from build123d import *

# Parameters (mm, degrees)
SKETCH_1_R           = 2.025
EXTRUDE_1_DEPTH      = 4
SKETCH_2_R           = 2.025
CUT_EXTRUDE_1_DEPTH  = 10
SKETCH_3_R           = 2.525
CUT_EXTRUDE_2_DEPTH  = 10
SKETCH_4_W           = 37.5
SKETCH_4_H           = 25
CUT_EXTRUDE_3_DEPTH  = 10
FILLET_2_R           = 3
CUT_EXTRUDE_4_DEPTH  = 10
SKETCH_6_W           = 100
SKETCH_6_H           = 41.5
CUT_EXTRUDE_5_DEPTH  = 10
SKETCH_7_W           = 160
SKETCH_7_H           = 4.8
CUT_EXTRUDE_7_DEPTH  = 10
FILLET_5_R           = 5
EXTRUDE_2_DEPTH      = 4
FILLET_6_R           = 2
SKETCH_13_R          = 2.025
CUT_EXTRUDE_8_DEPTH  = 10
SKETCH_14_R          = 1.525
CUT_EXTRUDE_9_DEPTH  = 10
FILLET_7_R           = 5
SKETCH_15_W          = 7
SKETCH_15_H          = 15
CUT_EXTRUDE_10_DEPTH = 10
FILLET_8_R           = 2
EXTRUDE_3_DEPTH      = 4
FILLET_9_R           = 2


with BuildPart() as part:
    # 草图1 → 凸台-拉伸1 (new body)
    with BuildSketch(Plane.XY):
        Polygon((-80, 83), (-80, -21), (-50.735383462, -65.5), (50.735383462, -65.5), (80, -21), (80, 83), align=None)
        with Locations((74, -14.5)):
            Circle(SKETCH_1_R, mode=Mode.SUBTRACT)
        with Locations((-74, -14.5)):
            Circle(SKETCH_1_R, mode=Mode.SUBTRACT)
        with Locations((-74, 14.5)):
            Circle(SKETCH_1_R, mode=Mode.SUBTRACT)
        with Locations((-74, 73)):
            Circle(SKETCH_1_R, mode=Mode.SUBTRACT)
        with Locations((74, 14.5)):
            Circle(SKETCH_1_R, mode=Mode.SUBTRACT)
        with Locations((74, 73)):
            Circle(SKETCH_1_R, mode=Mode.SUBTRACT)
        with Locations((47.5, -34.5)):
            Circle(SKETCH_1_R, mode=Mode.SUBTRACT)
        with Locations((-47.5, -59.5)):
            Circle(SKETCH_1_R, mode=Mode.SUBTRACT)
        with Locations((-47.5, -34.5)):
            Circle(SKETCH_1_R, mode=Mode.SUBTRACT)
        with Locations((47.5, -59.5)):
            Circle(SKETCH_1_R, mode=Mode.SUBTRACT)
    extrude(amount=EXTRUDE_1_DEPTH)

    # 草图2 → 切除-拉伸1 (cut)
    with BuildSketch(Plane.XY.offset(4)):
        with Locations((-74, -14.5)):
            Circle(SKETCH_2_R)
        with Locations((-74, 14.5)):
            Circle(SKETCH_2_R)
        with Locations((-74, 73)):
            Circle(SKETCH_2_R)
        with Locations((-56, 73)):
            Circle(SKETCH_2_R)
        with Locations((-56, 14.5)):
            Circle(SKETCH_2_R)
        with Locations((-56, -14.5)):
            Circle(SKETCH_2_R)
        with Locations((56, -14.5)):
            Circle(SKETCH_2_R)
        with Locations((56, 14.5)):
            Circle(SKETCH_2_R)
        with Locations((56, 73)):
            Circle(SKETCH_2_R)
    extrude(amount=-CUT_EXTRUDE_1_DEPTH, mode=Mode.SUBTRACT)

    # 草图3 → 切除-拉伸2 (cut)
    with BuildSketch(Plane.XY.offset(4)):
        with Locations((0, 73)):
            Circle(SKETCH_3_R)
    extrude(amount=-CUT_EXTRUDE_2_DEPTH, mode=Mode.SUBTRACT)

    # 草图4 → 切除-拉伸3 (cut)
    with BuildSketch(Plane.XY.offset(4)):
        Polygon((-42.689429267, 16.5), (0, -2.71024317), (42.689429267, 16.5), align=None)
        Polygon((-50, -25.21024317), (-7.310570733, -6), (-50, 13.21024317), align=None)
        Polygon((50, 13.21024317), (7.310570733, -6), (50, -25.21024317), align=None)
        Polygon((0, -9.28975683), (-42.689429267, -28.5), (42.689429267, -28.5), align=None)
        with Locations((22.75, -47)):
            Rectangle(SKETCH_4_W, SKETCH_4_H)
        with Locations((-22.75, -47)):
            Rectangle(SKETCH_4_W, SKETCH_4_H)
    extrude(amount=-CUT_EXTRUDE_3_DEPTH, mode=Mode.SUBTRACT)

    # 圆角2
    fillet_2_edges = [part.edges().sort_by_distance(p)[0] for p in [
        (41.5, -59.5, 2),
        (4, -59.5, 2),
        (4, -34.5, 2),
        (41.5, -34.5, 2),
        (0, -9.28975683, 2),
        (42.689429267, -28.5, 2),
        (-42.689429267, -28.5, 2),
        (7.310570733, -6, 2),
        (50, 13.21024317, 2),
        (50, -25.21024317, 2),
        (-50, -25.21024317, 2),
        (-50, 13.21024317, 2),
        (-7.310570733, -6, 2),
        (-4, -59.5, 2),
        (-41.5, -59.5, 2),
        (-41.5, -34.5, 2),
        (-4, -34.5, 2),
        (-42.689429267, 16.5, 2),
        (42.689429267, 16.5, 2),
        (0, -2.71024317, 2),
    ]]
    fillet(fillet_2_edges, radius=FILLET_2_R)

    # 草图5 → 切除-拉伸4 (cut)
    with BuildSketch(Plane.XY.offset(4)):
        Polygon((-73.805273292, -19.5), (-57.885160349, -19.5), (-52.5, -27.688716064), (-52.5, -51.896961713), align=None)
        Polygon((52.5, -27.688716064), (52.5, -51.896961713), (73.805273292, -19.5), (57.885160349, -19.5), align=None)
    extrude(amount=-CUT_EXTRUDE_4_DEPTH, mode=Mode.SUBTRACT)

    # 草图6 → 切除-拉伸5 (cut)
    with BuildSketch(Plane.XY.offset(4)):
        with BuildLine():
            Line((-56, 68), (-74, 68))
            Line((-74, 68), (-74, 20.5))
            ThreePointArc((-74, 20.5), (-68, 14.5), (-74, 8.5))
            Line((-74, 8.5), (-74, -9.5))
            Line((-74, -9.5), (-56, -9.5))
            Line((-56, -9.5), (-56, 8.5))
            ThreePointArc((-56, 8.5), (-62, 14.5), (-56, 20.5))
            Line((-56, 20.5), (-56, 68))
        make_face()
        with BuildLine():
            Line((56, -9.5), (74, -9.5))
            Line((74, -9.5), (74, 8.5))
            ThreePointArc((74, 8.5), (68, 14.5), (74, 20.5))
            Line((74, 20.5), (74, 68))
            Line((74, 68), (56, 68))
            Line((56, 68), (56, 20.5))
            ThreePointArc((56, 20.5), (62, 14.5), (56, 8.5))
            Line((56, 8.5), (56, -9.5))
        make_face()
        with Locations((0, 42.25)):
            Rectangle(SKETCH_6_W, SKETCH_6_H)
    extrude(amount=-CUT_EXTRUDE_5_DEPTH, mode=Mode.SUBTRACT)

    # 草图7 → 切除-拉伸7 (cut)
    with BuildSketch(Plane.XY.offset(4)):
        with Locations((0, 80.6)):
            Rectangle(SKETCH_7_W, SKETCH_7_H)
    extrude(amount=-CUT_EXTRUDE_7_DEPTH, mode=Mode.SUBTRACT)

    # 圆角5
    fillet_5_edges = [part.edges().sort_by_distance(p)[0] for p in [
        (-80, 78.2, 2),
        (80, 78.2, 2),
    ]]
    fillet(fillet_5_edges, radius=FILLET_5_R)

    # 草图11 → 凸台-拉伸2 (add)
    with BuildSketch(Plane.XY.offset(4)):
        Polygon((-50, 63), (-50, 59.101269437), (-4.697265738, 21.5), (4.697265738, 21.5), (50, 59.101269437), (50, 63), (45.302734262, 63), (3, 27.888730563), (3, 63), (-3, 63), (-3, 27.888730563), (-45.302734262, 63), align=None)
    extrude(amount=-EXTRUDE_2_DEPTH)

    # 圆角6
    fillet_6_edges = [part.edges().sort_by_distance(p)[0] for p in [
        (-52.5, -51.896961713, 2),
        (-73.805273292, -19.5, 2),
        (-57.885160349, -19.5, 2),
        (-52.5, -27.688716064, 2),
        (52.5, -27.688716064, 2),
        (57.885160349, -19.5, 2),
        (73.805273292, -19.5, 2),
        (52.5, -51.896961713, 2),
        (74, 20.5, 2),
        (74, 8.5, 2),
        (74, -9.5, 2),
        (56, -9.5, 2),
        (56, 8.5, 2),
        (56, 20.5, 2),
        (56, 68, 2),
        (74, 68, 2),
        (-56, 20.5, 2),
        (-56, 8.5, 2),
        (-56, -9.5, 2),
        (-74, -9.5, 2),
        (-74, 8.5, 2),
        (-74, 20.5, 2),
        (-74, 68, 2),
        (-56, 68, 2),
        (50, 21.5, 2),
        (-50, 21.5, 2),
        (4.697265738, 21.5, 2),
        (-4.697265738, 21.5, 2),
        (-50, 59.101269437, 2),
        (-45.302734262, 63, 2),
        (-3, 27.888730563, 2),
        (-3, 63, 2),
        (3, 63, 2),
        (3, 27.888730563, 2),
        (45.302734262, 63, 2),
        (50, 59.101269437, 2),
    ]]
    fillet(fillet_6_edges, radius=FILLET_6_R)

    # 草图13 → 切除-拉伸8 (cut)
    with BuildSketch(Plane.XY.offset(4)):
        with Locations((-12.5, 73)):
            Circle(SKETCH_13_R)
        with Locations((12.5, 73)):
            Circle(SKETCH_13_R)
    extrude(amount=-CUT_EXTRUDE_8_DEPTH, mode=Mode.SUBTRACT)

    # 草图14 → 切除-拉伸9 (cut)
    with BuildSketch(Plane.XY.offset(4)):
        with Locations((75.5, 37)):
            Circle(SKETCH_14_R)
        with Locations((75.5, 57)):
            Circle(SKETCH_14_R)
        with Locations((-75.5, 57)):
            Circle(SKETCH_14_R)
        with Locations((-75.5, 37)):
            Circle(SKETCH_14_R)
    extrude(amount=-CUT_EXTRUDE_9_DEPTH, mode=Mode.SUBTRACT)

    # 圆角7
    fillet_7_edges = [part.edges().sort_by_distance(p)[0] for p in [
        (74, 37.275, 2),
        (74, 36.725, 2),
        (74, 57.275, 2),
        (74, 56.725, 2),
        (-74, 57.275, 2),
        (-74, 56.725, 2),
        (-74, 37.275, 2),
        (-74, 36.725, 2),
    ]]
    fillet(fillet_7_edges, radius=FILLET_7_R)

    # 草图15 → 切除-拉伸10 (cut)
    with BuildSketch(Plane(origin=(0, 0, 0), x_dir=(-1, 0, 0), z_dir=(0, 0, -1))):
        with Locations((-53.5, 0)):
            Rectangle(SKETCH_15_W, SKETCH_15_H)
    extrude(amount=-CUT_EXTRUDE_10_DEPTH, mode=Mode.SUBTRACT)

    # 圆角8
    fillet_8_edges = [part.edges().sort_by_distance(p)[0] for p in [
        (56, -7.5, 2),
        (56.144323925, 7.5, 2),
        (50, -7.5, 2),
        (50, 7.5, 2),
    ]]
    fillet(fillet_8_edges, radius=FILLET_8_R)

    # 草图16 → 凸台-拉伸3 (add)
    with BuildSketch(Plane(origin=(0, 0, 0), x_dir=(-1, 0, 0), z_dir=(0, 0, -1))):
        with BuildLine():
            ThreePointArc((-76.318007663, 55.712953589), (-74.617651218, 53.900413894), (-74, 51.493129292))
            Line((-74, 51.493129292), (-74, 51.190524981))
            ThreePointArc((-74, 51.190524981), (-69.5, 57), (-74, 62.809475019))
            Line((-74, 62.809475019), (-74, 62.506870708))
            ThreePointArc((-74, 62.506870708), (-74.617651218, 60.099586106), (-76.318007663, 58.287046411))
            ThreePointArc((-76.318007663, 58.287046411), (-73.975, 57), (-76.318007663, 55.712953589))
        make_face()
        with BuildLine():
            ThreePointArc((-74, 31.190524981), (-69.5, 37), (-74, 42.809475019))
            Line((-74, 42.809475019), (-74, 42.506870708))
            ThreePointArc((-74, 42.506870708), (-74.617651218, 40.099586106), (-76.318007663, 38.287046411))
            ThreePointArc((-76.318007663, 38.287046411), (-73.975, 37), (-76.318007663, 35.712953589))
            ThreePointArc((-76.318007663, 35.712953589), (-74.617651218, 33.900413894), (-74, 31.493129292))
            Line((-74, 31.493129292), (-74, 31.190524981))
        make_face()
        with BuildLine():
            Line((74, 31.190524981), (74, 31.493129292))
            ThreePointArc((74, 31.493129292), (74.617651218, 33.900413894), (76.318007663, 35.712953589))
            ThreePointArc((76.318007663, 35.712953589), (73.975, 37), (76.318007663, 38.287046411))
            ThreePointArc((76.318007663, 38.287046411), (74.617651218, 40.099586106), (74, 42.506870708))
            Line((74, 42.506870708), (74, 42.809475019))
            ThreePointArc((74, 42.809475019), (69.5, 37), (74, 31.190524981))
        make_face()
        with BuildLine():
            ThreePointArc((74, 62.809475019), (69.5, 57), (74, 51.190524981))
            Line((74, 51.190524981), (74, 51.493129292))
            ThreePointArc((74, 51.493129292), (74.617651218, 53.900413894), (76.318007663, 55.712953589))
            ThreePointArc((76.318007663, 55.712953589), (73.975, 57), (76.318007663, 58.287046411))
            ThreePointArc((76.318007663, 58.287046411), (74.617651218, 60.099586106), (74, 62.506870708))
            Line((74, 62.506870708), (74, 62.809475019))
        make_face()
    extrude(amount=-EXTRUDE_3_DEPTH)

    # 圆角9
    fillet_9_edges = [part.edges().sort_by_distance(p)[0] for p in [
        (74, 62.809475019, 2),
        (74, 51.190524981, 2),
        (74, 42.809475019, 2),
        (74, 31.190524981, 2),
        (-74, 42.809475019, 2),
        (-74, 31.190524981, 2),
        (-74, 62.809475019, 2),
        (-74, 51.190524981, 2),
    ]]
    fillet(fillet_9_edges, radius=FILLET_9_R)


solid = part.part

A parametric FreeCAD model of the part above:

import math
import FreeCAD as App
import Part
import Sketcher
from FreeCAD import Vector


def edges_at(feature, points):
    """Names of the edges that pass closest to the given points."""
    edges = feature.Shape.Edges
    near = lambda p: min(range(len(edges)), key=lambda i: edges[i].distToShape(Part.Vertex(*p))[0])
    return sorted({f"Edge{near(p) + 1}" for p in points})

doc = App.newDocument("Part")
body = doc.addObject("PartDesign::Body", "Body")

# Sketch on XY plane
sketch1 = doc.addObject("Sketcher::SketchObject", "Sketch")
body.addObject(sketch1)
sketch1.AttachmentSupport = (doc.XY_Plane, [""])
sketch1.MapMode = "FlatFace"
sketch1.addGeometry([
    Part.LineSegment(Vector(-80, 83, 0), Vector(-80, -21, 0)),  # 0
    Part.LineSegment(Vector(-80, -21, 0), Vector(-50.7, -65.5, 0)),  # 1
    Part.LineSegment(Vector(-50.7, -65.5, 0), Vector(50.7, -65.5, 0)),  # 2
    Part.LineSegment(Vector(50.7, -65.5, 0), Vector(80, -21, 0)),  # 3
    Part.LineSegment(Vector(80, -21, 0), Vector(80, 83, 0)),  # 4
    Part.LineSegment(Vector(80, 83, 0), Vector(-80, 83, 0)),  # 5
    Part.Circle(Vector(-47.5, -59.5, 0), Vector(0, 0, 1), 2),  # 6
    Part.Circle(Vector(-47.5, -34.5, 0), Vector(0, 0, 1), 2),  # 7
    Part.Circle(Vector(-74, -14.5, 0), Vector(0, 0, 1), 2),  # 8
    Part.Circle(Vector(47.5, -59.5, 0), Vector(0, 0, 1), 2),  # 9
    Part.Circle(Vector(47.5, -34.5, 0), Vector(0, 0, 1), 2),  # 10
    Part.Circle(Vector(74, -14.5, 0), Vector(0, 0, 1), 2),  # 11
    Part.Circle(Vector(-74, 14.5, 0), Vector(0, 0, 1), 2),  # 12
    Part.Circle(Vector(-74, 73, 0), Vector(0, 0, 1), 2),  # 13
    Part.Circle(Vector(74, 14.5, 0), Vector(0, 0, 1), 2),  # 14
    Part.Circle(Vector(74, 73, 0), Vector(0, 0, 1), 2),  # 15
], False)
sketch1.addConstraint([
    Sketcher.Constraint("Coincident", 0, 2, 1, 1),
    Sketcher.Constraint("Coincident", 1, 2, 2, 1),
    Sketcher.Constraint("Coincident", 2, 2, 3, 1),
    Sketcher.Constraint("Coincident", 3, 2, 4, 1),
    Sketcher.Constraint("Coincident", 4, 2, 5, 1),
    Sketcher.Constraint("Coincident", 5, 2, 0, 1),
    Sketcher.Constraint("Vertical", 0),
    Sketcher.Constraint("Horizontal", 2),
    Sketcher.Constraint("Vertical", 4),
    Sketcher.Constraint("Horizontal", 5),
    Sketcher.Constraint("Equal", 6, 7),
    Sketcher.Constraint("Equal", 7, 8),
    Sketcher.Constraint("Equal", 8, 9),
    Sketcher.Constraint("Equal", 9, 10),
    Sketcher.Constraint("Equal", 10, 11),
    Sketcher.Constraint("Equal", 11, 12),
    Sketcher.Constraint("Equal", 12, 13),
    Sketcher.Constraint("Equal", 13, 14),
    Sketcher.Constraint("Equal", 14, 15),
    Sketcher.Constraint("Symmetric", 11, 3, 12, 3, -1, 1),
    Sketcher.Constraint("Symmetric", 8, 3, 14, 3, -1, 1),
    Sketcher.Constraint("Symmetric", 6, 3, 9, 3, -2),
    Sketcher.Constraint("Symmetric", 7, 3, 10, 3, -2),
    Sketcher.Constraint("Symmetric", 8, 3, 11, 3, -2),
    Sketcher.Constraint("Symmetric", 13, 3, 15, 3, -2),
    Sketcher.Constraint("Symmetric", 0, 2, 3, 2, -2),
    Sketcher.Constraint("Vertical", 6, 3, 7, 3),
    Sketcher.Constraint("Vertical", 12, 3, 13, 3),
    Sketcher.Constraint("Equal", 1, 3),
    Sketcher.Constraint("Diameter", 6, 4.05),
    Sketcher.Constraint("DistanceX", 5, 2, 5, 1, 160.0),
    Sketcher.Constraint("DistanceY", 0, 2, 0, 1, 104.0),
    Sketcher.Constraint("DistanceX", 8, 3, -1, 1, 74.0),
    Sketcher.Constraint("DistanceY", -1, 1, 13, 3, 73.0),
    Sketcher.Constraint("DistanceY", 0, 2, -1, 1, 21.0),
    Sketcher.Constraint("DistanceY", 6, 3, 7, 3, 25.0),
    Sketcher.Constraint("DistanceY", 7, 3, 8, 3, 20.0),
    Sketcher.Constraint("DistanceX", 6, 3, 9, 3, 95.0),
    Sketcher.Constraint("DistanceY", 8, 3, 12, 3, 29.0),
    Sketcher.Constraint("DistanceY", 1, 2, 6, 3, 6.0),
    Sketcher.Constraint("DistanceX", 2, 1, 2, 2, 101.470767),
])
pad1 = doc.addObject("PartDesign::Pad", "Pad")
body.addObject(pad1)
pad1.Profile = sketch1
pad1.Length = 4

# Sketch on XY plane
sketch2 = doc.addObject("Sketcher::SketchObject", "Sketch001")
body.addObject(sketch2)
sketch2.AttachmentSupport = (doc.XY_Plane, [""])
sketch2.MapMode = "FlatFace"
sketch2.AttachmentOffset = App.Placement(Vector(0, 0, 4), App.Rotation())
sketch2.addGeometry([
    Part.Circle(Vector(-74, -14.5, 0), Vector(0, 0, 1), 2),  # 0
    Part.Circle(Vector(-74, 14.5, 0), Vector(0, 0, 1), 2),  # 1
    Part.Circle(Vector(-74, 73, 0), Vector(0, 0, 1), 2),  # 2
    Part.Circle(Vector(-56, 73, 0), Vector(0, 0, 1), 2),  # 3
    Part.Circle(Vector(-56, 14.5, 0), Vector(0, 0, 1), 2),  # 4
    Part.Circle(Vector(-56, -14.5, 0), Vector(0, 0, 1), 2),  # 5
    Part.Circle(Vector(56, -14.5, 0), Vector(0, 0, 1), 2),  # 6
    Part.Circle(Vector(56, 14.5, 0), Vector(0, 0, 1), 2),  # 7
    Part.Circle(Vector(56, 73, 0), Vector(0, 0, 1), 2),  # 8
], False)
sketch2.addConstraint([
    Sketcher.Constraint("Equal", 0, 1),
    Sketcher.Constraint("Equal", 1, 2),
    Sketcher.Constraint("Equal", 2, 3),
    Sketcher.Constraint("Equal", 3, 4),
    Sketcher.Constraint("Equal", 4, 5),
    Sketcher.Constraint("Equal", 5, 6),
    Sketcher.Constraint("Equal", 6, 7),
    Sketcher.Constraint("Equal", 7, 8),
    Sketcher.Constraint("Symmetric", 4, 3, 6, 3, -1, 1),
    Sketcher.Constraint("Symmetric", 5, 3, 7, 3, -1, 1),
    Sketcher.Constraint("Symmetric", 5, 3, 6, 3, -2),
    Sketcher.Constraint("Symmetric", 3, 3, 8, 3, -2),
    Sketcher.Constraint("Symmetric", 0, 3, 1, 3, -1),
    Sketcher.Constraint("Horizontal", 2, 3, 3, 3),
    Sketcher.Constraint("Horizontal", 1, 3, 4, 3),
    Sketcher.Constraint("Vertical", 1, 3, 2, 3),
    Sketcher.Constraint("Vertical", 3, 3, 4, 3),
    Sketcher.Constraint("Diameter", 0, 4.05),
    Sketcher.Constraint("DistanceX", 0, 3, -1, 1, 74.0),
    Sketcher.Constraint("DistanceY", -1, 1, 2, 3, 73.0),
    Sketcher.Constraint("DistanceX", 3, 3, -1, 1, 56.0),
    Sketcher.Constraint("DistanceY", 0, 3, 1, 3, 29.0),
])
pocket1 = doc.addObject("PartDesign::Pocket", "Pocket")
body.addObject(pocket1)
pocket1.Profile = sketch2
pocket1.Length = 10

# Sketch on XY plane
sketch3 = doc.addObject("Sketcher::SketchObject", "Sketch002")
body.addObject(sketch3)
sketch3.AttachmentSupport = (doc.XY_Plane, [""])
sketch3.MapMode = "FlatFace"
sketch3.AttachmentOffset = App.Placement(Vector(0, 0, 4), App.Rotation())
sketch3.addGeometry(Part.Circle(Vector(0, 73, 0), Vector(0, 0, 1), 2.5), False)
sketch3.addConstraint([
    Sketcher.Constraint("PointOnObject", 0, 3, -2),
    Sketcher.Constraint("Diameter", 0, 5.05),
    Sketcher.Constraint("DistanceY", -1, 1, 0, 3, 73.0),
])
pocket2 = doc.addObject("PartDesign::Pocket", "Pocket001")
body.addObject(pocket2)
pocket2.Profile = sketch3
pocket2.Length = 10

# Sketch on XY plane
sketch4 = doc.addObject("Sketcher::SketchObject", "Sketch003")
body.addObject(sketch4)
sketch4.AttachmentSupport = (doc.XY_Plane, [""])
sketch4.MapMode = "FlatFace"
sketch4.AttachmentOffset = App.Placement(Vector(0, 0, 4), App.Rotation())
sketch4.addGeometry([
    Part.LineSegment(Vector(-43, 16, 0), Vector(0, -3, 0)),  # 0
    Part.LineSegment(Vector(0, -3, 0), Vector(43, 16, 0)),  # 1
    Part.LineSegment(Vector(43, 16, 0), Vector(-43, 16, 0)),  # 2
    Part.LineSegment(Vector(-50, -25, 0), Vector(-7, -6, 0)),  # 3
    Part.LineSegment(Vector(-7, -6, 0), Vector(-50, 13, 0)),  # 4
    Part.LineSegment(Vector(-50, 13, 0), Vector(-50, -25, 0)),  # 5
    Part.LineSegment(Vector(50, 13, 0), Vector(7, -6, 0)),  # 6
    Part.LineSegment(Vector(7, -6, 0), Vector(50, -25, 0)),  # 7
    Part.LineSegment(Vector(50, -25, 0), Vector(50, 13, 0)),  # 8
    Part.LineSegment(Vector(0, -9, 0), Vector(-43, -28, 0)),  # 9
    Part.LineSegment(Vector(-43, -28, 0), Vector(43, -28, 0)),  # 10
    Part.LineSegment(Vector(43, -28, 0), Vector(0, -9, 0)),  # 11
    Part.LineSegment(Vector(4, -34, 0), Vector(4, -60, 0)),  # 12
    Part.LineSegment(Vector(4, -60, 0), Vector(42, -60, 0)),  # 13
    Part.LineSegment(Vector(42, -60, 0), Vector(42, -34, 0)),  # 14
    Part.LineSegment(Vector(42, -34, 0), Vector(4, -34, 0)),  # 15
    Part.LineSegment(Vector(-42, -34, 0), Vector(-42, -60, 0)),  # 16
    Part.LineSegment(Vector(-42, -60, 0), Vector(-4, -60, 0)),  # 17
    Part.LineSegment(Vector(-4, -60, 0), Vector(-4, -34, 0)),  # 18
    Part.LineSegment(Vector(-4, -34, 0), Vector(-42, -34, 0)),  # 19
], False)
sketch4.addConstraint([
    Sketcher.Constraint("Coincident", 0, 2, 1, 1),
    Sketcher.Constraint("Coincident", 1, 2, 2, 1),
    Sketcher.Constraint("Coincident", 2, 2, 0, 1),
    Sketcher.Constraint("Coincident", 3, 2, 4, 1),
    Sketcher.Constraint("Coincident", 4, 2, 5, 1),
    Sketcher.Constraint("Coincident", 5, 2, 3, 1),
    Sketcher.Constraint("Coincident", 6, 2, 7, 1),
    Sketcher.Constraint("Coincident", 7, 2, 8, 1),
    Sketcher.Constraint("Coincident", 8, 2, 6, 1),
    Sketcher.Constraint("Coincident", 9, 2, 10, 1),
    Sketcher.Constraint("Coincident", 10, 2, 11, 1),
    Sketcher.Constraint("Coincident", 11, 2, 9, 1),
    Sketcher.Constraint("Coincident", 12, 2, 13, 1),
    Sketcher.Constraint("Coincident", 13, 2, 14, 1),
    Sketcher.Constraint("Coincident", 14, 2, 15, 1),
    Sketcher.Constraint("Coincident", 15, 2, 12, 1),
    Sketcher.Constraint("Coincident", 16, 2, 17, 1),
    Sketcher.Constraint("Coincident", 17, 2, 18, 1),
    Sketcher.Constraint("Coincident", 18, 2, 19, 1),
    Sketcher.Constraint("Coincident", 19, 2, 16, 1),
    Sketcher.Constraint("Horizontal", 2),
    Sketcher.Constraint("Vertical", 5),
    Sketcher.Constraint("Vertical", 8),
    Sketcher.Constraint("Horizontal", 10),
    Sketcher.Constraint("Vertical", 12),
    Sketcher.Constraint("Horizontal", 13),
    Sketcher.Constraint("Vertical", 14),
    Sketcher.Constraint("Horizontal", 15),
    Sketcher.Constraint("Vertical", 16),
    Sketcher.Constraint("Horizontal", 17),
    Sketcher.Constraint("Vertical", 18),
    Sketcher.Constraint("Horizontal", 19),
    Sketcher.Constraint("Symmetric", 3, 2, 6, 2, -2),
    Sketcher.Constraint("Symmetric", 5, 2, 7, 2, -2),
    Sketcher.Constraint("Symmetric", 13, 2, 16, 2, -2),
    Sketcher.Constraint("Symmetric", 15, 2, 18, 2, -2),
    Sketcher.Constraint("PointOnObject", 0, 2, -2),
    Sketcher.Constraint("PointOnObject", 11, 2, -2),
    Sketcher.Constraint("Parallel", 1, 3),
    Sketcher.Constraint("Parallel", 0, 4),
    Sketcher.Constraint("Parallel", 3, 6),
    Sketcher.Constraint("Parallel", 4, 7),
    Sketcher.Constraint("Parallel", 6, 9),
    Sketcher.Constraint("Parallel", 7, 11),
    Sketcher.Constraint("Vertical", 2, 2, 9, 2),
    Sketcher.Constraint("Equal", 1, 3),
    Sketcher.Constraint("DistanceY", 12, 2, 12, 1, 25.0),
    Sketcher.Constraint("DistanceX", 13, 1, 13, 2, 37.5),
    Sketcher.Constraint("DistanceY", 3, 2, -1, 1, 6.0),
    Sketcher.Constraint("DistanceX", 4, 2, -1, 1, 50.0),
    Sketcher.Constraint("DistanceX", -1, 1, 12, 2, 4.0),
    Sketcher.Constraint("DistanceY", 9, 2, 2, 2, 45.0),
    Sketcher.Constraint("DistanceY", 12, 2, 10, 2, 31.0),
    Sketcher.Constraint("DistanceY", -1, 1, 1, 2, 16.5),
    Sketcher.Constraint("DistanceX", 2, 2, 2, 1, 85.378859),
    Sketcher.Constraint("DistanceY", 5, 2, 5, 1, 38.420486),
])
pocket3 = doc.addObject("PartDesign::Pocket", "Pocket002")
body.addObject(pocket3)
pocket3.Profile = sketch4
pocket3.Length = 10
doc.recompute()

fillet = doc.addObject("PartDesign::Fillet", "Fillet")
body.addObject(fillet)
fillet.Base = (pocket3, edges_at(pocket3, [
    (41.5, -59.5, 2),
    (4, -59.5, 2),
    (4, -34.5, 2),
    (41.5, -34.5, 2),
    (0, -9.29, 2),
    (42.689, -28.5, 2),
    (-42.689, -28.5, 2),
    (7.311, -6, 2),
    (50, 13.21, 2),
    (50, -25.21, 2),
    (-50, -25.21, 2),
    (-50, 13.21, 2),
    (-7.311, -6, 2),
    (-4, -59.5, 2),
    (-41.5, -59.5, 2),
    (-41.5, -34.5, 2),
    (-4, -34.5, 2),
    (-42.689, 16.5, 2),
    (42.689, 16.5, 2),
    (0, -2.71, 2),
]))
fillet.Radius = 3

# Sketch on XY plane
sketch5 = doc.addObject("Sketcher::SketchObject", "Sketch004")
body.addObject(sketch5)
sketch5.AttachmentSupport = (doc.XY_Plane, [""])
sketch5.MapMode = "FlatFace"
sketch5.AttachmentOffset = App.Placement(Vector(0, 0, 4), App.Rotation())
sketch5.addGeometry([
    Part.LineSegment(Vector(-58, -20, 0), Vector(-74, -20, 0)),  # 0
    Part.LineSegment(Vector(-74, -20, 0), Vector(-52, -52, 0)),  # 1
    Part.LineSegment(Vector(-52, -52, 0), Vector(-52, -28, 0)),  # 2
    Part.LineSegment(Vector(-52, -28, 0), Vector(-58, -20, 0)),  # 3
    Part.LineSegment(Vector(52, -28, 0), Vector(52, -52, 0)),  # 4
    Part.LineSegment(Vector(52, -52, 0), Vector(74, -20, 0)),  # 5
    Part.LineSegment(Vector(74, -20, 0), Vector(58, -20, 0)),  # 6
    Part.LineSegment(Vector(58, -20, 0), Vector(52, -28, 0)),  # 7
], False)
sketch5.addConstraint([
    Sketcher.Constraint("Coincident", 0, 2, 1, 1),
    Sketcher.Constraint("Coincident", 1, 2, 2, 1),
    Sketcher.Constraint("Coincident", 2, 2, 3, 1),
    Sketcher.Constraint("Coincident", 3, 2, 0, 1),
    Sketcher.Constraint("Coincident", 4, 2, 5, 1),
    Sketcher.Constraint("Coincident", 5, 2, 6, 1),
    Sketcher.Constraint("Coincident", 6, 2, 7, 1),
    Sketcher.Constraint("Coincident", 7, 2, 4, 1),
    Sketcher.Constraint("Horizontal", 0),
    Sketcher.Constraint("Vertical", 2),
    Sketcher.Constraint("Vertical", 4),
    Sketcher.Constraint("Horizontal", 6),
    Sketcher.Constraint("Symmetric", 1, 2, 4, 2, -2),
    Sketcher.Constraint("Symmetric", 0, 2, 5, 2, -2),
    Sketcher.Constraint("Parallel", 1, 3),
    Sketcher.Constraint("Parallel", 5, 7),
    Sketcher.Constraint("Horizontal", 2, 2, 7, 2),
    Sketcher.Constraint("DistanceX", 1, 2, 4, 2, 105.0),
    Sketcher.Constraint("DistanceY", 0, 2, -1, 1, 19.5),
    Sketcher.Constraint("DistanceX", 0, 2, 0, 1, 15.920113),
    Sketcher.Constraint("DistanceY", 2, 1, 2, 2, 24.208246),
    Sketcher.Constraint("DistanceY", 1, 2, -1, 1, 51.896962),
])
pocket4 = doc.addObject("PartDesign::Pocket", "Pocket003")
body.addObject(pocket4)
pocket4.Profile = sketch5
pocket4.Length = 10

# Sketch on XY plane
sketch6 = doc.addObject("Sketcher::SketchObject", "Sketch005")
body.addObject(sketch6)
sketch6.AttachmentSupport = (doc.XY_Plane, [""])
sketch6.MapMode = "FlatFace"
sketch6.AttachmentOffset = App.Placement(Vector(0, 0, 4), App.Rotation())
sketch6.addGeometry([
    Part.LineSegment(Vector(-56, 68, 0), Vector(-74, 68, 0)),  # 0
    Part.LineSegment(Vector(-74, 68, 0), Vector(-74, 20, 0)),  # 1
    Part.ArcOfCircle(Part.Circle(Vector(-74, 14, 0), Vector(0, 0, 1), 6), math.radians(-90), math.radians(90)),  # 2
    Part.LineSegment(Vector(-74, 8, 0), Vector(-74, -10, 0)),  # 3
    Part.LineSegment(Vector(-74, -10, 0), Vector(-56, -10, 0)),  # 4
    Part.LineSegment(Vector(-56, -10, 0), Vector(-56, 8, 0)),  # 5
    Part.ArcOfCircle(Part.Circle(Vector(-56, 14, 0), Vector(0, 0, 1), 6), math.radians(90), math.radians(270)),  # 6
    Part.LineSegment(Vector(-56, 20, 0), Vector(-56, 68, 0)),  # 7
    Part.LineSegment(Vector(56, -10, 0), Vector(74, -10, 0)),  # 8
    Part.LineSegment(Vector(74, -10, 0), Vector(74, 8, 0)),  # 9
    Part.ArcOfCircle(Part.Circle(Vector(74, 14, 0), Vector(0, 0, 1), 6), math.radians(90), math.radians(270)),  # 10
    Part.LineSegment(Vector(74, 20, 0), Vector(74, 68, 0)),  # 11
    Part.LineSegment(Vector(74, 68, 0), Vector(56, 68, 0)),  # 12
    Part.LineSegment(Vector(56, 68, 0), Vector(56, 20, 0)),  # 13
    Part.ArcOfCircle(Part.Circle(Vector(56, 14, 0), Vector(0, 0, 1), 6), math.radians(-90), math.radians(90)),  # 14
    Part.LineSegment(Vector(56, 8, 0), Vector(56, -10, 0)),  # 15
    Part.LineSegment(Vector(-50, 63, 0), Vector(-50, 22, 0)),  # 16
    Part.LineSegment(Vector(-50, 22, 0), Vector(50, 22, 0)),  # 17
    Part.LineSegment(Vector(50, 22, 0), Vector(50, 63, 0)),  # 18
    Part.LineSegment(Vector(50, 63, 0), Vector(-50, 63, 0)),  # 19
], False)
sketch6.addConstraint([
    Sketcher.Constraint("Coincident", 0, 2, 1, 1),
    Sketcher.Constraint("Coincident", 1, 2, 2, 2),
    Sketcher.Constraint("Coincident", 2, 1, 3, 1),
    Sketcher.Constraint("Coincident", 3, 2, 4, 1),
    Sketcher.Constraint("Coincident", 4, 2, 5, 1),
    Sketcher.Constraint("Coincident", 5, 2, 6, 2),
    Sketcher.Constraint("Coincident", 6, 1, 7, 1),
    Sketcher.Constraint("Coincident", 7, 2, 0, 1),
    Sketcher.Constraint("Coincident", 8, 2, 9, 1),
    Sketcher.Constraint("Coincident", 9, 2, 10, 2),
    Sketcher.Constraint("Coincident", 10, 1, 11, 1),
    Sketcher.Constraint("Coincident", 11, 2, 12, 1),
    Sketcher.Constraint("Coincident", 12, 2, 13, 1),
    Sketcher.Constraint("Coincident", 13, 2, 14, 2),
    Sketcher.Constraint("Coincident", 14, 1, 15, 1),
    Sketcher.Constraint("Coincident", 15, 2, 8, 1),
    Sketcher.Constraint("Coincident", 16, 2, 17, 1),
    Sketcher.Constraint("Coincident", 17, 2, 18, 1),
    Sketcher.Constraint("Coincident", 18, 2, 19, 1),
    Sketcher.Constraint("Coincident", 19, 2, 16, 1),
    Sketcher.Constraint("Horizontal", 0),
    Sketcher.Constraint("Vertical", 1),
    Sketcher.Constraint("Vertical", 3),
    Sketcher.Constraint("Horizontal", 4),
    Sketcher.Constraint("Vertical", 5),
    Sketcher.Constraint("Vertical", 7),
    Sketcher.Constraint("Horizontal", 8),
    Sketcher.Constraint("Vertical", 9),
    Sketcher.Constraint("Vertical", 11),
    Sketcher.Constraint("Horizontal", 12),
    Sketcher.Constraint("Vertical", 13),
    Sketcher.Constraint("Vertical", 15),
    Sketcher.Constraint("Vertical", 16),
    Sketcher.Constraint("Horizontal", 17),
    Sketcher.Constraint("Vertical", 18),
    Sketcher.Constraint("Horizontal", 19),
    Sketcher.Constraint("Equal", 2, 6),
    Sketcher.Constraint("Equal", 6, 10),
    Sketcher.Constraint("Equal", 10, 14),
    Sketcher.Constraint("Symmetric", 2, 3, 10, 3, -2),
    Sketcher.Constraint("Symmetric", 6, 3, 14, 3, -2),
    Sketcher.Constraint("Symmetric", 3, 2, 8, 2, -2),
    Sketcher.Constraint("Symmetric", 0, 2, 11, 2, -2),
    Sketcher.Constraint("Horizontal", 2, 3, 6, 3),
    Sketcher.Constraint("Vertical", 2, 3, 0, 2),
    Sketcher.Constraint("Vertical", 1, 2, 2, 1),
    Sketcher.Constraint("Vertical", 6, 3, 4, 2),
    Sketcher.Constraint("Vertical", 5, 2, 6, 1),
    Sketcher.Constraint("Vertical", 14, 3, 12, 2),
    Sketcher.Constraint("Vertical", 13, 2, 14, 1),
    Sketcher.Constraint("Equal", 12, 3),
    Sketcher.Constraint("Radius", 2, 6.0),
    Sketcher.Constraint("DistanceX", 0, 2, 0, 1, 18.0),
    Sketcher.Constraint("DistanceX", 17, 1, 17, 2, 100.0),
    Sketcher.Constraint("DistanceY", 1, 2, 1, 1, 47.5),
    Sketcher.Constraint("DistanceY", 16, 2, 16, 1, 41.5),
    Sketcher.Constraint("DistanceX", 2, 3, -1, 1, 74.0),
    Sketcher.Constraint("DistanceY", -1, 1, 0, 2, 68.0),
    Sketcher.Constraint("DistanceX", 16, 2, -1, 1, 50.0),
    Sketcher.Constraint("DistanceY", -1, 1, 18, 2, 63.0),
])
pocket5 = doc.addObject("PartDesign::Pocket", "Pocket004")
body.addObject(pocket5)
pocket5.Profile = sketch6
pocket5.Length = 10

# Sketch on XY plane
sketch7 = doc.addObject("Sketcher::SketchObject", "Sketch006")
body.addObject(sketch7)
sketch7.AttachmentSupport = (doc.XY_Plane, [""])
sketch7.MapMode = "FlatFace"
sketch7.AttachmentOffset = App.Placement(Vector(0, 0, 4), App.Rotation())
sketch7.addGeometry([
    Part.LineSegment(Vector(-80, 83, 0), Vector(-80, 78.2, 0)),
    Part.LineSegment(Vector(-80, 78.2, 0), Vector(80, 78.2, 0)),
    Part.LineSegment(Vector(80, 78.2, 0), Vector(80, 83, 0)),
    Part.LineSegment(Vector(80, 83, 0), Vector(-80, 83, 0)),
], False)
sketch7.addConstraint([
    Sketcher.Constraint("Coincident", 0, 2, 1, 1),
    Sketcher.Constraint("Coincident", 1, 2, 2, 1),
    Sketcher.Constraint("Coincident", 2, 2, 3, 1),
    Sketcher.Constraint("Coincident", 3, 2, 0, 1),
    Sketcher.Constraint("Vertical", 0),
    Sketcher.Constraint("Horizontal", 1),
    Sketcher.Constraint("Vertical", 2),
    Sketcher.Constraint("Horizontal", 3),
    Sketcher.Constraint("DistanceX", 1, 1, 1, 2, 160.0),
    Sketcher.Constraint("DistanceY", 0, 2, 0, 1, 4.8),
    Sketcher.Constraint("DistanceX", 0, 2, -1, 1, 80.0),
    Sketcher.Constraint("DistanceY", -1, 1, 2, 2, 83.0),
])
pocket6 = doc.addObject("PartDesign::Pocket", "Pocket005")
body.addObject(pocket6)
pocket6.Profile = sketch7
pocket6.Length = 10
doc.recompute()

fillet2 = doc.addObject("PartDesign::Fillet", "Fillet001")
body.addObject(fillet2)
fillet2.Base = (pocket6, edges_at(pocket6, [(-80, 78.2, 2), (80, 78.2, 2)]))
fillet2.Radius = 5

# Sketch on XY plane
sketch8 = doc.addObject("Sketcher::SketchObject", "Sketch007")
body.addObject(sketch8)
sketch8.AttachmentSupport = (doc.XY_Plane, [""])
sketch8.MapMode = "FlatFace"
sketch8.AttachmentOffset = App.Placement(Vector(0, 0, 4), App.Rotation())
sketch8.addGeometry([
    Part.LineSegment(Vector(-50, 63, 0), Vector(-50, 59.1, 0)),  # 0
    Part.LineSegment(Vector(-50, 59.1, 0), Vector(-4.7, 21.5, 0)),  # 1
    Part.LineSegment(Vector(-4.7, 21.5, 0), Vector(4.7, 21.5, 0)),  # 2
    Part.LineSegment(Vector(4.7, 21.5, 0), Vector(50, 59.1, 0)),  # 3
    Part.LineSegment(Vector(50, 59.1, 0), Vector(50, 63, 0)),  # 4
    Part.LineSegment(Vector(50, 63, 0), Vector(45.3, 63, 0)),  # 5
    Part.LineSegment(Vector(45.3, 63, 0), Vector(3, 27.9, 0)),  # 6
    Part.LineSegment(Vector(3, 27.9, 0), Vector(3, 63, 0)),  # 7
    Part.LineSegment(Vector(3, 63, 0), Vector(-3, 63, 0)),  # 8
    Part.LineSegment(Vector(-3, 63, 0), Vector(-3, 27.9, 0)),  # 9
    Part.LineSegment(Vector(-3, 27.9, 0), Vector(-45.3, 63, 0)),  # 10
    Part.LineSegment(Vector(-45.3, 63, 0), Vector(-50, 63, 0)),  # 11
], False)
sketch8.addConstraint([
    Sketcher.Constraint("Coincident", 0, 2, 1, 1),
    Sketcher.Constraint("Coincident", 1, 2, 2, 1),
    Sketcher.Constraint("Coincident", 2, 2, 3, 1),
    Sketcher.Constraint("Coincident", 3, 2, 4, 1),
    Sketcher.Constraint("Coincident", 4, 2, 5, 1),
    Sketcher.Constraint("Coincident", 5, 2, 6, 1),
    Sketcher.Constraint("Coincident", 6, 2, 7, 1),
    Sketcher.Constraint("Coincident", 7, 2, 8, 1),
    Sketcher.Constraint("Coincident", 8, 2, 9, 1),
    Sketcher.Constraint("Coincident", 9, 2, 10, 1),
    Sketcher.Constraint("Coincident", 10, 2, 11, 1),
    Sketcher.Constraint("Coincident", 11, 2, 0, 1),
    Sketcher.Constraint("Vertical", 0),
    Sketcher.Constraint("Horizontal", 2),
    Sketcher.Constraint("Vertical", 4),
    Sketcher.Constraint("Horizontal", 5),
    Sketcher.Constraint("Vertical", 7),
    Sketcher.Constraint("Horizontal", 8),
    Sketcher.Constraint("Vertical", 9),
    Sketcher.Constraint("Horizontal", 11),
    Sketcher.Constraint("Symmetric", 0, 2, 3, 2, -2),
    Sketcher.Constraint("Symmetric", 6, 2, 9, 2, -2),
    Sketcher.Constraint("Symmetric", 5, 2, 10, 2, -2),
    Sketcher.Constraint("Parallel", 3, 6),
    Sketcher.Constraint("Parallel", 1, 10),
    Sketcher.Constraint("Horizontal", 5, 2, 7, 2),
    Sketcher.Constraint("DistanceX", 8, 2, 8, 1, 6.0),
    Sketcher.Constraint("DistanceX", 0, 2, -1, 1, 50.0),
    Sketcher.Constraint("DistanceY", -1, 1, 4, 2, 63.0),
    Sketcher.Constraint("DistanceX", 1, 2, 5, 2, 50.0),
    Sketcher.Constraint("DistanceY", -1, 1, 1, 2, 21.5),
    Sketcher.Constraint("DistanceX", 2, 1, 2, 2, 9.394531),
    Sketcher.Constraint("DistanceY", 0, 2, 0, 1, 3.898731),
])
pad2 = doc.addObject("PartDesign::Pad", "Pad001")
body.addObject(pad2)
pad2.Profile = sketch8
pad2.Length = 4
pad2.Reversed = True
doc.recompute()

fillet3 = doc.addObject("PartDesign::Fillet", "Fillet002")
body.addObject(fillet3)
fillet3.Base = (pad2, edges_at(pad2, [
    (-52.5, -51.897, 2),
    (-73.805, -19.5, 2),
    (-57.885, -19.5, 2),
    (-52.5, -27.689, 2),
    (52.5, -27.689, 2),
    (57.885, -19.5, 2),
    (73.805, -19.5, 2),
    (52.5, -51.897, 2),
    (74, 20.5, 2),
    (74, 8.5, 2),
    (74, -9.5, 2),
    (56, -9.5, 2),
    (56, 8.5, 2),
    (56, 20.5, 2),
    (56, 68, 2),
    (74, 68, 2),
    (-56, 20.5, 2),
    (-56, 8.5, 2),
    (-56, -9.5, 2),
    (-74, -9.5, 2),
    (-74, 8.5, 2),
    (-74, 20.5, 2),
    (-74, 68, 2),
    (-56, 68, 2),
    (50, 21.5, 2),
    (-50, 21.5, 2),
    (4.697, 21.5, 2),
    (-4.697, 21.5, 2),
    (-50, 59.101, 2),
    (-45.303, 63, 2),
    (-3, 27.889, 2),
    (-3, 63, 2),
    (3, 63, 2),
    (3, 27.889, 2),
    (45.303, 63, 2),
    (50, 59.101, 2),
]))
fillet3.Radius = 2

# Sketch on XY plane
sketch9 = doc.addObject("Sketcher::SketchObject", "Sketch008")
body.addObject(sketch9)
sketch9.AttachmentSupport = (doc.XY_Plane, [""])
sketch9.MapMode = "FlatFace"
sketch9.AttachmentOffset = App.Placement(Vector(0, 0, 4), App.Rotation())
sketch9.addGeometry([
    Part.Circle(Vector(-12.5, 73, 0), Vector(0, 0, 1), 2),
    Part.Circle(Vector(12.5, 73, 0), Vector(0, 0, 1), 2),
], False)
sketch9.addConstraint([
    Sketcher.Constraint("Equal", 0, 1),
    Sketcher.Constraint("Symmetric", 0, 3, 1, 3, -2),
    Sketcher.Constraint("Diameter", 0, 4.05),
    Sketcher.Constraint("DistanceY", -1, 1, 0, 3, 73.0),
    Sketcher.Constraint("DistanceX", 0, 3, 1, 3, 25.0),
])
pocket7 = doc.addObject("PartDesign::Pocket", "Pocket006")
body.addObject(pocket7)
pocket7.Profile = sketch9
pocket7.Length = 10

# Sketch on XY plane
sketch10 = doc.addObject("Sketcher::SketchObject", "Sketch009")
body.addObject(sketch10)
sketch10.AttachmentSupport = (doc.XY_Plane, [""])
sketch10.MapMode = "FlatFace"
sketch10.AttachmentOffset = App.Placement(Vector(0, 0, 4), App.Rotation())
sketch10.addGeometry([
    Part.Circle(Vector(75.5, 37, 0), Vector(0, 0, 1), 1.5),
    Part.Circle(Vector(75.5, 57, 0), Vector(0, 0, 1), 1.5),
    Part.Circle(Vector(-75.5, 57, 0), Vector(0, 0, 1), 1.5),
    Part.Circle(Vector(-75.5, 37, 0), Vector(0, 0, 1), 1.5),
], False)
sketch10.addConstraint([
    Sketcher.Constraint("Equal", 0, 1),
    Sketcher.Constraint("Equal", 1, 2),
    Sketcher.Constraint("Equal", 2, 3),
    Sketcher.Constraint("Symmetric", 1, 3, 2, 3, -2),
    Sketcher.Constraint("Symmetric", 0, 3, 3, 3, -2),
    Sketcher.Constraint("Vertical", 0, 3, 1, 3),
    Sketcher.Constraint("Diameter", 0, 3.05),
    Sketcher.Constraint("DistanceY", -1, 1, 0, 3, 37.0),
    Sketcher.Constraint("DistanceY", -1, 1, 1, 3, 57.0),
    Sketcher.Constraint("DistanceX", 2, 3, 1, 3, 151.0),
])
pocket8 = doc.addObject("PartDesign::Pocket", "Pocket007")
body.addObject(pocket8)
pocket8.Profile = sketch10
pocket8.Length = 10
doc.recompute()

fillet4 = doc.addObject("PartDesign::Fillet", "Fillet003")
body.addObject(fillet4)
fillet4.Base = (pocket8, edges_at(pocket8, [
    (74, 37.275, 2),
    (74, 36.725, 2),
    (74, 57.275, 2),
    (74, 56.725, 2),
    (-74, 57.275, 2),
    (-74, 56.725, 2),
    (-74, 37.275, 2),
    (-74, 36.725, 2),
]))
fillet4.Radius = 5

# Sketch on XY plane
sketch11 = doc.addObject("Sketcher::SketchObject", "Sketch010")
body.addObject(sketch11)
sketch11.AttachmentSupport = (doc.XY_Plane, [""])
sketch11.MapMode = "FlatFace"
sketch11.addGeometry([
    Part.LineSegment(Vector(57, 8, 0), Vector(57, -8, 0)),
    Part.LineSegment(Vector(57, -8, 0), Vector(50, -8, 0)),
    Part.LineSegment(Vector(50, -8, 0), Vector(50, 8, 0)),
    Part.LineSegment(Vector(50, 8, 0), Vector(57, 8, 0)),
], False)
sketch11.addConstraint([
    Sketcher.Constraint("Coincident", 0, 2, 1, 1),
    Sketcher.Constraint("Coincident", 1, 2, 2, 1),
    Sketcher.Constraint("Coincident", 2, 2, 3, 1),
    Sketcher.Constraint("Coincident", 3, 2, 0, 1),
    Sketcher.Constraint("Vertical", 0),
    Sketcher.Constraint("Horizontal", 1),
    Sketcher.Constraint("Vertical", 2),
    Sketcher.Constraint("Horizontal", 3),
    Sketcher.Constraint("DistanceX", 1, 2, 1, 1, 7.0),
    Sketcher.Constraint("DistanceY", 0, 2, 0, 1, 15.0),
    Sketcher.Constraint("DistanceX", -1, 1, 0, 2, 57.0),
    Sketcher.Constraint("DistanceY", 0, 2, -1, 1, 7.5),
])
pocket9 = doc.addObject("PartDesign::Pocket", "Pocket008")
body.addObject(pocket9)
pocket9.Profile = sketch11
pocket9.Length = 10
pocket9.Reversed = True
doc.recompute()

fillet5 = doc.addObject("PartDesign::Fillet", "Fillet004")
body.addObject(fillet5)
fillet5.Base = (pocket9, edges_at(pocket9, [
    (56, -7.5, 2),
    (56.144, 7.5, 2),
    (50, -7.5, 2),
    (50, 7.5, 2),
]))
fillet5.Radius = 2

# Sketch on XY plane
sketch12 = doc.addObject("Sketcher::SketchObject", "Sketch011")
body.addObject(sketch12)
sketch12.AttachmentSupport = (doc.XY_Plane, [""])
sketch12.MapMode = "FlatFace"
sketch12.addGeometry([
    Part.ArcOfCircle(Part.Circle(Vector(79, 51.49, 0), Vector(0, 0, 1), 5), math.radians(122), math.radians(180)),  # 0
    Part.LineSegment(Vector(74, 51.49, 0), Vector(74, 51.19, 0)),  # 1
    Part.ArcOfCircle(Part.Circle(Vector(75.5, 57, 0), Vector(0, 0, 1), 6), math.radians(104), math.radians(256)),  # 2
    Part.LineSegment(Vector(74, 62.81, 0), Vector(74, 62.51, 0)),  # 3
    Part.ArcOfCircle(Part.Circle(Vector(79, 62.51, 0), Vector(0, 0, 1), 5), math.radians(180), math.radians(238)),  # 4
    Part.ArcOfCircle(Part.Circle(Vector(75.5, 57, 0), Vector(0, 0, 1), 1.52), math.radians(58), math.radians(302)),  # 5
    Part.ArcOfCircle(Part.Circle(Vector(75.5, 37, 0), Vector(0, 0, 1), 6), math.radians(104), math.radians(256)),  # 6
    Part.LineSegment(Vector(74, 42.81, 0), Vector(74, 42.51, 0)),  # 7
    Part.ArcOfCircle(Part.Circle(Vector(79, 42.51, 0), Vector(0, 0, 1), 5), math.radians(180), math.radians(238)),  # 8
    Part.ArcOfCircle(Part.Circle(Vector(75.5, 37, 0), Vector(0, 0, 1), 1.52), math.radians(58), math.radians(302)),  # 9
    Part.ArcOfCircle(Part.Circle(Vector(79, 31.49, 0), Vector(0, 0, 1), 5), math.radians(122), math.radians(180)),  # 10
    Part.LineSegment(Vector(74, 31.49, 0), Vector(74, 31.19, 0)),  # 11
    Part.LineSegment(Vector(-74, 31.19, 0), Vector(-74, 31.49, 0)),  # 12
    Part.ArcOfCircle(Part.Circle(Vector(-79, 31.49, 0), Vector(0, 0, 1), 5), math.radians(0), math.radians(58)),  # 13
    Part.ArcOfCircle(Part.Circle(Vector(-75.5, 37, 0), Vector(0, 0, 1), 1.52), math.radians(-122), math.radians(122)),  # 14
    Part.ArcOfCircle(Part.Circle(Vector(-79, 42.51, 0), Vector(0, 0, 1), 5), math.radians(-58), math.radians(0)),  # 15
    Part.LineSegment(Vector(-74, 42.51, 0), Vector(-74, 42.81, 0)),  # 16
    Part.ArcOfCircle(Part.Circle(Vector(-75.5, 37, 0), Vector(0, 0, 1), 6), math.radians(-76), math.radians(76)),  # 17
    Part.ArcOfCircle(Part.Circle(Vector(-75.5, 57, 0), Vector(0, 0, 1), 6), math.radians(-76), math.radians(76)),  # 18
    Part.LineSegment(Vector(-74, 51.19, 0), Vector(-74, 51.49, 0)),  # 19
    Part.ArcOfCircle(Part.Circle(Vector(-79, 51.49, 0), Vector(0, 0, 1), 5), math.radians(0), math.radians(58)),  # 20
    Part.ArcOfCircle(Part.Circle(Vector(-75.5, 57, 0), Vector(0, 0, 1), 1.52), math.radians(-122), math.radians(122)),  # 21
    Part.ArcOfCircle(Part.Circle(Vector(-79, 62.51, 0), Vector(0, 0, 1), 5), math.radians(-58), math.radians(0)),  # 22
    Part.LineSegment(Vector(-74, 62.51, 0), Vector(-74, 62.81, 0)),  # 23
], False)
sketch12.addConstraint([
    Sketcher.Constraint("Tangent", 0, 2, 1, 1),
    Sketcher.Constraint("Coincident", 1, 2, 2, 2),
    Sketcher.Constraint("Coincident", 2, 1, 3, 1),
    Sketcher.Constraint("Tangent", 3, 2, 4, 1),
    Sketcher.Constraint("Tangent", 4, 2, 5, 1),
    Sketcher.Constraint("Tangent", 5, 2, 0, 1),
    Sketcher.Constraint("Coincident", 6, 1, 7, 1),
    Sketcher.Constraint("Tangent", 7, 2, 8, 1),
    Sketcher.Constraint("Tangent", 8, 2, 9, 1),
    Sketcher.Constraint("Tangent", 9, 2, 10, 1),
    Sketcher.Constraint("Tangent", 10, 2, 11, 1),
    Sketcher.Constraint("Coincident", 11, 2, 6, 2),
    Sketcher.Constraint("Tangent", 12, 2, 13, 1),
    Sketcher.Constraint("Tangent", 13, 2, 14, 1),
    Sketcher.Constraint("Tangent", 14, 2, 15, 1),
    Sketcher.Constraint("Tangent", 15, 2, 16, 1),
    Sketcher.Constraint("Coincident", 16, 2, 17, 2),
    Sketcher.Constraint("Coincident", 17, 1, 12, 1),
    Sketcher.Constraint("Coincident", 18, 1, 19, 1),
    Sketcher.Constraint("Tangent", 19, 2, 20, 1),
    Sketcher.Constraint("Tangent", 20, 2, 21, 1),
    Sketcher.Constraint("Tangent", 21, 2, 22, 1),
    Sketcher.Constraint("Tangent", 22, 2, 23, 1),
    Sketcher.Constraint("Coincident", 23, 2, 18, 2),
    Sketcher.Constraint("Vertical", 1),
    Sketcher.Constraint("Vertical", 3),
    Sketcher.Constraint("Vertical", 7),
    Sketcher.Constraint("Vertical", 11),
    Sketcher.Constraint("Vertical", 12),
    Sketcher.Constraint("Vertical", 16),
    Sketcher.Constraint("Vertical", 19),
    Sketcher.Constraint("Vertical", 23),
    Sketcher.Constraint("Coincident", 5, 3, 2, 3),
    Sketcher.Constraint("Coincident", 9, 3, 6, 3),
    Sketcher.Constraint("Coincident", 17, 3, 14, 3),
    Sketcher.Constraint("Coincident", 21, 3, 18, 3),
    Sketcher.Constraint("Equal", 0, 4),
    Sketcher.Constraint("Equal", 2, 6),
    Sketcher.Constraint("Equal", 4, 8),
    Sketcher.Constraint("Equal", 5, 9),
    Sketcher.Constraint("Equal", 8, 10),
    Sketcher.Constraint("Equal", 10, 13),
    Sketcher.Constraint("Equal", 9, 14),
    Sketcher.Constraint("Equal", 13, 15),
    Sketcher.Constraint("Equal", 6, 17),
    Sketcher.Constraint("Equal", 17, 18),
    Sketcher.Constraint("Equal", 15, 20),
    Sketcher.Constraint("Equal", 14, 21),
    Sketcher.Constraint("Equal", 20, 22),
    Sketcher.Constraint("Symmetric", 10, 3, 13, 3, -2),
    Sketcher.Constraint("Symmetric", 8, 3, 15, 3, -2),
    Sketcher.Constraint("Symmetric", 2, 3, 18, 3, -2),
    Sketcher.Constraint("Horizontal", 0, 3, 20, 3),
    Sketcher.Constraint("Horizontal", 4, 3, 22, 3),
    Sketcher.Constraint("Vertical", 0, 3, 4, 3),
    Sketcher.Constraint("Vertical", 5, 3, 6, 3),
    Sketcher.Constraint("Vertical", 4, 3, 8, 3),
    Sketcher.Constraint("Vertical", 8, 3, 10, 3),
    Sketcher.Constraint("Radius", 0, 5.0),
    Sketcher.Constraint("Radius", 2, 6.0),
    Sketcher.Constraint("DistanceX", -1, 1, 0, 3, 79.0),
    Sketcher.Constraint("DistanceY", -1, 1, 2, 3, 57.0),
    Sketcher.Constraint("DistanceY", -1, 1, 6, 3, 37.0),
    Sketcher.Constraint("Radius", 5, 1.525),
    Sketcher.Constraint("DistanceX", 14, 3, 6, 3, 151.0),
])
pad3 = doc.addObject("PartDesign::Pad", "Pad002")
body.addObject(pad3)
pad3.Profile = sketch12
pad3.Length = 4
doc.recompute()

fillet6 = doc.addObject("PartDesign::Fillet", "Fillet005")
body.addObject(fillet6)
fillet6.Base = (pad3, edges_at(pad3, [
    (74, 62.809, 2),
    (74, 51.191, 2),
    (74, 42.809, 2),
    (74, 31.191, 2),
    (-74, 42.809, 2),
    (-74, 31.191, 2),
    (-74, 62.809, 2),
    (-74, 51.191, 2),
]))
fillet6.Radius = 2

doc.recompute()
